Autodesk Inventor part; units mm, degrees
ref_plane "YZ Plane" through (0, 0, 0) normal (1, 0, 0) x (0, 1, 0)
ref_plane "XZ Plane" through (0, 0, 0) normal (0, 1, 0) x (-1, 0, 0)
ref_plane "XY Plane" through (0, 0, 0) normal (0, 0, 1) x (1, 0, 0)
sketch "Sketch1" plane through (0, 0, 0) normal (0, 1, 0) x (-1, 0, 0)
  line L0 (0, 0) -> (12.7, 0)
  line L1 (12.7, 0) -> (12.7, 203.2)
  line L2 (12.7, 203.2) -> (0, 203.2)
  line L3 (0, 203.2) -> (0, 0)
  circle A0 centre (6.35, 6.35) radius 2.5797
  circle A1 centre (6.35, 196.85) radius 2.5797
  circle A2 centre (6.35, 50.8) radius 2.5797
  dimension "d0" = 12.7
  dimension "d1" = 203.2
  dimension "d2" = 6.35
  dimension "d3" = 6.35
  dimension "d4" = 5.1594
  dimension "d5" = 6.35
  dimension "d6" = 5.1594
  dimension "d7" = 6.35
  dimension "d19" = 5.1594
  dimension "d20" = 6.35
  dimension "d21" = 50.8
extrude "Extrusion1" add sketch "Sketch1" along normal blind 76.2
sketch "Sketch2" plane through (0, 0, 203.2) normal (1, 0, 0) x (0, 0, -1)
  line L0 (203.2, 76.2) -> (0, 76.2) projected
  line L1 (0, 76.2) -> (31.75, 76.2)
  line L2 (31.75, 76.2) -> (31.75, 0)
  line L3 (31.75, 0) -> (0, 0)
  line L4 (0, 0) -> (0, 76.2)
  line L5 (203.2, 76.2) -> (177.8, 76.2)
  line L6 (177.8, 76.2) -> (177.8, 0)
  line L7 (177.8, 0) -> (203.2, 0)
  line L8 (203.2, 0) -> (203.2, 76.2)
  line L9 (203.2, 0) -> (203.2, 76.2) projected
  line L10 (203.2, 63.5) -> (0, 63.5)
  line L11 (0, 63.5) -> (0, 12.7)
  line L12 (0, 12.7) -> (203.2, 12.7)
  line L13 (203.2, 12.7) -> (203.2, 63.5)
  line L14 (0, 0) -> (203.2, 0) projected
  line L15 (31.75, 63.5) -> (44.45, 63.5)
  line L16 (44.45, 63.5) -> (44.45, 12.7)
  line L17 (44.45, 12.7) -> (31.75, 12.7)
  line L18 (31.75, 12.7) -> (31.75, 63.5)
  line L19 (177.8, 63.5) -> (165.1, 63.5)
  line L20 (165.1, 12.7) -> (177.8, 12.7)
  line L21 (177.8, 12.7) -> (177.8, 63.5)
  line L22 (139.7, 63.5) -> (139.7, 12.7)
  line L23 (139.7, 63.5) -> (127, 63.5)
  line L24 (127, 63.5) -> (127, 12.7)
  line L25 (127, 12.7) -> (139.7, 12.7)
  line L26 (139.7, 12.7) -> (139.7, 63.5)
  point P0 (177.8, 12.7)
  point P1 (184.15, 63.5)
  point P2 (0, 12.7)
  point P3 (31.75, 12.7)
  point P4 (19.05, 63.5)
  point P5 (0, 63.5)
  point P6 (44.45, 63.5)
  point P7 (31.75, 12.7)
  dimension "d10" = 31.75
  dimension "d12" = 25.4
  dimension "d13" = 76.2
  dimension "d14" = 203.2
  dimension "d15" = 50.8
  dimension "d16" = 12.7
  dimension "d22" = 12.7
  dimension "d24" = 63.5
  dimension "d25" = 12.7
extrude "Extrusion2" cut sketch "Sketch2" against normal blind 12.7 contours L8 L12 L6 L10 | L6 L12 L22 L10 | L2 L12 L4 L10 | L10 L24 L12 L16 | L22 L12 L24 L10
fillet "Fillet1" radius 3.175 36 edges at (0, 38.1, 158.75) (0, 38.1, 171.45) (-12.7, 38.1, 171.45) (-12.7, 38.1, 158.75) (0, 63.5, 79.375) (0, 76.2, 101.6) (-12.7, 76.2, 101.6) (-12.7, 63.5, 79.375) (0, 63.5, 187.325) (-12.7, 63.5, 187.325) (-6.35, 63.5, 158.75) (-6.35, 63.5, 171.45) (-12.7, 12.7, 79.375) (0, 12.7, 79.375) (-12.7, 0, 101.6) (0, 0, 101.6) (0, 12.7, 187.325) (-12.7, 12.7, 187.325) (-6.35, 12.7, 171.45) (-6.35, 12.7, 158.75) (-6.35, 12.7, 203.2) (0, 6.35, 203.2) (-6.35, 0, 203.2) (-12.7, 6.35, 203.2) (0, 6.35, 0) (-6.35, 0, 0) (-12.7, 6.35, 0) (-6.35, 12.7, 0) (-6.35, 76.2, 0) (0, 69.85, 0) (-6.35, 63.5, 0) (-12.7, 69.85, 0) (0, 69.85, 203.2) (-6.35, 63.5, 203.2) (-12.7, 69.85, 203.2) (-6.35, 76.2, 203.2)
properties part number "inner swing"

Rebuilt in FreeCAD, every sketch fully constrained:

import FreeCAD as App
import Part
import Sketcher

V = App.Vector
Q = App.Units.Quantity


def edges_at(feature, points):
    """Names of the edges that pass closest to the given points."""
    edges = feature.Shape.Edges
    near = lambda p: min(range(len(edges)), key=lambda i: edges[i].distToShape(Part.Vertex(*p))[0])
    return sorted({f"Edge{near(p) + 1}" for p in points})

doc = App.newDocument("Part")
params = doc.addObject("Spreadsheet::Sheet", "Params")
for row, (alias, value) in enumerate([
    ("sketch1_height", "8 in"),
    ("sketch1_diameter", "0.203126 in"),
    ("sketch1_width", "0.5 in"),
    ("pad1_length", "3 in"),
    ("sketch2_width", "2 in"),
    ("sketch2_height", "1.25 in"),
    ("pocket1_length", "0.5 in"),
    ("fillet_radius", "0.125 in"),
], start=1):
    params.set(f"A{row}", alias)
    params.set(f"B{row}", "=" + value)
    params.setAlias(f"B{row}", alias)

body = doc.addObject("PartDesign::Body", "Body")

# Sketch on XZ plane
sketch1 = body.newObject("Sketcher::SketchObject", "Sketch")
sketch1.AttachmentSupport = (doc.getObject("XZ_Plane"), [""])
sketch1.MapMode = "FlatFace"
sketch1.addGeometry([
    Part.LineSegment(V(0, 203.2, 0), V(0, 0, 0)),  # 0
    Part.LineSegment(V(0, 0, 0), V(-12.7, 0, 0)),  # 1
    Part.LineSegment(V(-12.7, 0, 0), V(-12.7, 203.2, 0)),  # 2
    Part.LineSegment(V(-12.7, 203.2, 0), V(0, 203.2, 0)),  # 3
    Part.Circle(V(-6.3, 6.3, 0), V(0, 0, 1), 2.6),  # 4
    Part.Circle(V(-6.3, 50.8, 0), V(0, 0, 1), 2.6),  # 5
    Part.Circle(V(-6.3, 196.8, 0), V(0, 0, 1), 2.6),  # 6
], False)
sketch1.addConstraint([
    Sketcher.Constraint("Coincident", 0, 2, 1, 1),
    Sketcher.Constraint("Coincident", 1, 2, 2, 1),
    Sketcher.Constraint("Coincident", 2, 2, 3, 1),
    Sketcher.Constraint("Coincident", 3, 2, 0, 1),
    Sketcher.Constraint("Vertical", 0),
    Sketcher.Constraint("Horizontal", 1),
    Sketcher.Constraint("Vertical", 2),
    Sketcher.Constraint("Horizontal", 3),
    Sketcher.Constraint("Coincident", 0, 2, -1, 1),
    Sketcher.Constraint("Equal", 4, 5),
    Sketcher.Constraint("Equal", 5, 6),
    Sketcher.Constraint("Vertical", 4, 3, 5, 3),
    Sketcher.Constraint("Vertical", 5, 3, 6, 3),
    Sketcher.Constraint("DistanceY", 0, 2, 0, 1, Q("8 in")),
    Sketcher.Constraint("Diameter", 4, Q("0.203126 in")),
    Sketcher.Constraint("DistanceX", 1, 2, 1, 1, Q("0.5 in")),
    Sketcher.Constraint("DistanceY", -1, 1, 5, 3, Q("2 in")),
    Sketcher.Constraint("DistanceX", 4, 3, -1, 1, Q("0.25 in")),
    Sketcher.Constraint("DistanceY", -1, 1, 4, 3, Q("0.25 in")),
    Sketcher.Constraint("DistanceY", 6, 3, 2, 2, Q("0.25 in")),
])
sketch1.setExpression("Constraints[13]", "Params.sketch1_height")
sketch1.setExpression("Constraints[14]", "Params.sketch1_diameter")
sketch1.setExpression("Constraints[15]", "Params.sketch1_width")
pad1 = body.newObject("PartDesign::Pad", "Pad")
pad1.Profile = sketch1
pad1.setExpression("Length", "Params.pad1_length")
pad1.Reversed = True

# Sketch on YZ plane
sketch2 = body.newObject("Sketcher::SketchObject", "Sketch001")
sketch2.AttachmentSupport = (doc.getObject("YZ_Plane"), [""])
sketch2.MapMode = "FlatFace"
sketch2.addGeometry([
    Part.LineSegment(V(13, 0, 0), V(64, 0, 0)),  # 0
    Part.LineSegment(V(64, 0, 0), V(64, 159, 0)),  # 1
    Part.LineSegment(V(64, 159, 0), V(13, 159, 0)),  # 2
    Part.LineSegment(V(13, 159, 0), V(13, 0, 0)),  # 3
    Part.LineSegment(V(13, 171, 0), V(64, 171, 0)),  # 4
    Part.LineSegment(V(64, 171, 0), V(64, 203, 0)),  # 5
    Part.LineSegment(V(64, 203, 0), V(13, 203, 0)),  # 6
    Part.LineSegment(V(13, 203, 0), V(13, 171, 0)),  # 7
], False)
sketch2.addConstraint([
    Sketcher.Constraint("Coincident", 0, 2, 1, 1),
    Sketcher.Constraint("Coincident", 1, 2, 2, 1),
    Sketcher.Constraint("Coincident", 2, 2, 3, 1),
    Sketcher.Constraint("Coincident", 3, 2, 0, 1),
    Sketcher.Constraint("Coincident", 4, 2, 5, 1),
    Sketcher.Constraint("Coincident", 5, 2, 6, 1),
    Sketcher.Constraint("Coincident", 6, 2, 7, 1),
    Sketcher.Constraint("Coincident", 7, 2, 4, 1),
    Sketcher.Constraint("Horizontal", 0),
    Sketcher.Constraint("Vertical", 1),
    Sketcher.Constraint("Horizontal", 2),
    Sketcher.Constraint("Vertical", 3),
    Sketcher.Constraint("Horizontal", 4),
    Sketcher.Constraint("Vertical", 5),
    Sketcher.Constraint("Horizontal", 6),
    Sketcher.Constraint("Vertical", 7),
    Sketcher.Constraint("PointOnObject", 0, 2, -1),
    Sketcher.Constraint("Vertical", 1, 2, 4, 2),
    Sketcher.Constraint("Vertical", 3, 2, 6, 2),
    Sketcher.Constraint("DistanceX", 0, 1, 0, 2, Q("2 in")),
    Sketcher.Constraint("DistanceY", -1, 1, 5, 2, Q("8 in")),
    Sketcher.Constraint("DistanceY", 5, 1, 5, 2, Q("1.25 in")),
    Sketcher.Constraint("DistanceX", -1, 1, 0, 2, Q("2.5 in")),
    Sketcher.Constraint("DistanceY", 1, 2, 4, 2, Q("0.5 in")),
])
sketch2.setExpression("Constraints[19]", "Params.sketch2_width")
sketch2.setExpression("Constraints[21]", "Params.sketch2_height")
pocket1 = body.newObject("PartDesign::Pocket", "Pocket")
pocket1.Profile = sketch2
pocket1.setExpression("Length", "Params.pocket1_length")
doc.recompute()

fillet = body.newObject("PartDesign::Fillet", "Fillet")
fillet.Base = (pocket1, edges_at(pocket1, [
    (0, 38.1, 158.75),
    (0, 38.1, 171.45),
    (-12.7, 38.1, 171.45),
    (-12.7, 38.1, 158.75),
    (0, 63.5, 79.375),
    (0, 76.2, 101.6),
    (-12.7, 76.2, 101.6),
    (-12.7, 63.5, 79.375),
    (0, 63.5, 187.325),
    (-12.7, 63.5, 187.325),
    (-6.35, 63.5, 158.75),
    (-6.35, 63.5, 171.45),
    (-12.7, 12.7, 79.375),
    (0, 12.7, 79.375),
    (-12.7, 0, 101.6),
    (0, 0, 101.6),
    (0, 12.7, 187.325),
    (-12.7, 12.7, 187.325),
    (-6.35, 12.7, 171.45),
    (-6.35, 12.7, 158.75),
    (-6.35, 12.7, 203.2),
    (0, 6.35, 203.2),
    (-6.35, 0, 203.2),
    (-12.7, 6.35, 203.2),
    (0, 6.35, 0),
    (-6.35, 0, 0),
    (-12.7, 6.35, 0),
    (-6.35, 12.7, 0),
    (-6.35, 76.2, 0),
    (0, 69.85, 0),
    (-6.35, 63.5, 0),
    (-12.7, 69.85, 0),
    (0, 69.85, 203.2),
    (-6.35, 63.5, 203.2),
    (-12.7, 69.85, 203.2),
    (-6.35, 76.2, 203.2),
]))
fillet.setExpression("Radius", "Params.fillet_radius")

doc.recompute()
